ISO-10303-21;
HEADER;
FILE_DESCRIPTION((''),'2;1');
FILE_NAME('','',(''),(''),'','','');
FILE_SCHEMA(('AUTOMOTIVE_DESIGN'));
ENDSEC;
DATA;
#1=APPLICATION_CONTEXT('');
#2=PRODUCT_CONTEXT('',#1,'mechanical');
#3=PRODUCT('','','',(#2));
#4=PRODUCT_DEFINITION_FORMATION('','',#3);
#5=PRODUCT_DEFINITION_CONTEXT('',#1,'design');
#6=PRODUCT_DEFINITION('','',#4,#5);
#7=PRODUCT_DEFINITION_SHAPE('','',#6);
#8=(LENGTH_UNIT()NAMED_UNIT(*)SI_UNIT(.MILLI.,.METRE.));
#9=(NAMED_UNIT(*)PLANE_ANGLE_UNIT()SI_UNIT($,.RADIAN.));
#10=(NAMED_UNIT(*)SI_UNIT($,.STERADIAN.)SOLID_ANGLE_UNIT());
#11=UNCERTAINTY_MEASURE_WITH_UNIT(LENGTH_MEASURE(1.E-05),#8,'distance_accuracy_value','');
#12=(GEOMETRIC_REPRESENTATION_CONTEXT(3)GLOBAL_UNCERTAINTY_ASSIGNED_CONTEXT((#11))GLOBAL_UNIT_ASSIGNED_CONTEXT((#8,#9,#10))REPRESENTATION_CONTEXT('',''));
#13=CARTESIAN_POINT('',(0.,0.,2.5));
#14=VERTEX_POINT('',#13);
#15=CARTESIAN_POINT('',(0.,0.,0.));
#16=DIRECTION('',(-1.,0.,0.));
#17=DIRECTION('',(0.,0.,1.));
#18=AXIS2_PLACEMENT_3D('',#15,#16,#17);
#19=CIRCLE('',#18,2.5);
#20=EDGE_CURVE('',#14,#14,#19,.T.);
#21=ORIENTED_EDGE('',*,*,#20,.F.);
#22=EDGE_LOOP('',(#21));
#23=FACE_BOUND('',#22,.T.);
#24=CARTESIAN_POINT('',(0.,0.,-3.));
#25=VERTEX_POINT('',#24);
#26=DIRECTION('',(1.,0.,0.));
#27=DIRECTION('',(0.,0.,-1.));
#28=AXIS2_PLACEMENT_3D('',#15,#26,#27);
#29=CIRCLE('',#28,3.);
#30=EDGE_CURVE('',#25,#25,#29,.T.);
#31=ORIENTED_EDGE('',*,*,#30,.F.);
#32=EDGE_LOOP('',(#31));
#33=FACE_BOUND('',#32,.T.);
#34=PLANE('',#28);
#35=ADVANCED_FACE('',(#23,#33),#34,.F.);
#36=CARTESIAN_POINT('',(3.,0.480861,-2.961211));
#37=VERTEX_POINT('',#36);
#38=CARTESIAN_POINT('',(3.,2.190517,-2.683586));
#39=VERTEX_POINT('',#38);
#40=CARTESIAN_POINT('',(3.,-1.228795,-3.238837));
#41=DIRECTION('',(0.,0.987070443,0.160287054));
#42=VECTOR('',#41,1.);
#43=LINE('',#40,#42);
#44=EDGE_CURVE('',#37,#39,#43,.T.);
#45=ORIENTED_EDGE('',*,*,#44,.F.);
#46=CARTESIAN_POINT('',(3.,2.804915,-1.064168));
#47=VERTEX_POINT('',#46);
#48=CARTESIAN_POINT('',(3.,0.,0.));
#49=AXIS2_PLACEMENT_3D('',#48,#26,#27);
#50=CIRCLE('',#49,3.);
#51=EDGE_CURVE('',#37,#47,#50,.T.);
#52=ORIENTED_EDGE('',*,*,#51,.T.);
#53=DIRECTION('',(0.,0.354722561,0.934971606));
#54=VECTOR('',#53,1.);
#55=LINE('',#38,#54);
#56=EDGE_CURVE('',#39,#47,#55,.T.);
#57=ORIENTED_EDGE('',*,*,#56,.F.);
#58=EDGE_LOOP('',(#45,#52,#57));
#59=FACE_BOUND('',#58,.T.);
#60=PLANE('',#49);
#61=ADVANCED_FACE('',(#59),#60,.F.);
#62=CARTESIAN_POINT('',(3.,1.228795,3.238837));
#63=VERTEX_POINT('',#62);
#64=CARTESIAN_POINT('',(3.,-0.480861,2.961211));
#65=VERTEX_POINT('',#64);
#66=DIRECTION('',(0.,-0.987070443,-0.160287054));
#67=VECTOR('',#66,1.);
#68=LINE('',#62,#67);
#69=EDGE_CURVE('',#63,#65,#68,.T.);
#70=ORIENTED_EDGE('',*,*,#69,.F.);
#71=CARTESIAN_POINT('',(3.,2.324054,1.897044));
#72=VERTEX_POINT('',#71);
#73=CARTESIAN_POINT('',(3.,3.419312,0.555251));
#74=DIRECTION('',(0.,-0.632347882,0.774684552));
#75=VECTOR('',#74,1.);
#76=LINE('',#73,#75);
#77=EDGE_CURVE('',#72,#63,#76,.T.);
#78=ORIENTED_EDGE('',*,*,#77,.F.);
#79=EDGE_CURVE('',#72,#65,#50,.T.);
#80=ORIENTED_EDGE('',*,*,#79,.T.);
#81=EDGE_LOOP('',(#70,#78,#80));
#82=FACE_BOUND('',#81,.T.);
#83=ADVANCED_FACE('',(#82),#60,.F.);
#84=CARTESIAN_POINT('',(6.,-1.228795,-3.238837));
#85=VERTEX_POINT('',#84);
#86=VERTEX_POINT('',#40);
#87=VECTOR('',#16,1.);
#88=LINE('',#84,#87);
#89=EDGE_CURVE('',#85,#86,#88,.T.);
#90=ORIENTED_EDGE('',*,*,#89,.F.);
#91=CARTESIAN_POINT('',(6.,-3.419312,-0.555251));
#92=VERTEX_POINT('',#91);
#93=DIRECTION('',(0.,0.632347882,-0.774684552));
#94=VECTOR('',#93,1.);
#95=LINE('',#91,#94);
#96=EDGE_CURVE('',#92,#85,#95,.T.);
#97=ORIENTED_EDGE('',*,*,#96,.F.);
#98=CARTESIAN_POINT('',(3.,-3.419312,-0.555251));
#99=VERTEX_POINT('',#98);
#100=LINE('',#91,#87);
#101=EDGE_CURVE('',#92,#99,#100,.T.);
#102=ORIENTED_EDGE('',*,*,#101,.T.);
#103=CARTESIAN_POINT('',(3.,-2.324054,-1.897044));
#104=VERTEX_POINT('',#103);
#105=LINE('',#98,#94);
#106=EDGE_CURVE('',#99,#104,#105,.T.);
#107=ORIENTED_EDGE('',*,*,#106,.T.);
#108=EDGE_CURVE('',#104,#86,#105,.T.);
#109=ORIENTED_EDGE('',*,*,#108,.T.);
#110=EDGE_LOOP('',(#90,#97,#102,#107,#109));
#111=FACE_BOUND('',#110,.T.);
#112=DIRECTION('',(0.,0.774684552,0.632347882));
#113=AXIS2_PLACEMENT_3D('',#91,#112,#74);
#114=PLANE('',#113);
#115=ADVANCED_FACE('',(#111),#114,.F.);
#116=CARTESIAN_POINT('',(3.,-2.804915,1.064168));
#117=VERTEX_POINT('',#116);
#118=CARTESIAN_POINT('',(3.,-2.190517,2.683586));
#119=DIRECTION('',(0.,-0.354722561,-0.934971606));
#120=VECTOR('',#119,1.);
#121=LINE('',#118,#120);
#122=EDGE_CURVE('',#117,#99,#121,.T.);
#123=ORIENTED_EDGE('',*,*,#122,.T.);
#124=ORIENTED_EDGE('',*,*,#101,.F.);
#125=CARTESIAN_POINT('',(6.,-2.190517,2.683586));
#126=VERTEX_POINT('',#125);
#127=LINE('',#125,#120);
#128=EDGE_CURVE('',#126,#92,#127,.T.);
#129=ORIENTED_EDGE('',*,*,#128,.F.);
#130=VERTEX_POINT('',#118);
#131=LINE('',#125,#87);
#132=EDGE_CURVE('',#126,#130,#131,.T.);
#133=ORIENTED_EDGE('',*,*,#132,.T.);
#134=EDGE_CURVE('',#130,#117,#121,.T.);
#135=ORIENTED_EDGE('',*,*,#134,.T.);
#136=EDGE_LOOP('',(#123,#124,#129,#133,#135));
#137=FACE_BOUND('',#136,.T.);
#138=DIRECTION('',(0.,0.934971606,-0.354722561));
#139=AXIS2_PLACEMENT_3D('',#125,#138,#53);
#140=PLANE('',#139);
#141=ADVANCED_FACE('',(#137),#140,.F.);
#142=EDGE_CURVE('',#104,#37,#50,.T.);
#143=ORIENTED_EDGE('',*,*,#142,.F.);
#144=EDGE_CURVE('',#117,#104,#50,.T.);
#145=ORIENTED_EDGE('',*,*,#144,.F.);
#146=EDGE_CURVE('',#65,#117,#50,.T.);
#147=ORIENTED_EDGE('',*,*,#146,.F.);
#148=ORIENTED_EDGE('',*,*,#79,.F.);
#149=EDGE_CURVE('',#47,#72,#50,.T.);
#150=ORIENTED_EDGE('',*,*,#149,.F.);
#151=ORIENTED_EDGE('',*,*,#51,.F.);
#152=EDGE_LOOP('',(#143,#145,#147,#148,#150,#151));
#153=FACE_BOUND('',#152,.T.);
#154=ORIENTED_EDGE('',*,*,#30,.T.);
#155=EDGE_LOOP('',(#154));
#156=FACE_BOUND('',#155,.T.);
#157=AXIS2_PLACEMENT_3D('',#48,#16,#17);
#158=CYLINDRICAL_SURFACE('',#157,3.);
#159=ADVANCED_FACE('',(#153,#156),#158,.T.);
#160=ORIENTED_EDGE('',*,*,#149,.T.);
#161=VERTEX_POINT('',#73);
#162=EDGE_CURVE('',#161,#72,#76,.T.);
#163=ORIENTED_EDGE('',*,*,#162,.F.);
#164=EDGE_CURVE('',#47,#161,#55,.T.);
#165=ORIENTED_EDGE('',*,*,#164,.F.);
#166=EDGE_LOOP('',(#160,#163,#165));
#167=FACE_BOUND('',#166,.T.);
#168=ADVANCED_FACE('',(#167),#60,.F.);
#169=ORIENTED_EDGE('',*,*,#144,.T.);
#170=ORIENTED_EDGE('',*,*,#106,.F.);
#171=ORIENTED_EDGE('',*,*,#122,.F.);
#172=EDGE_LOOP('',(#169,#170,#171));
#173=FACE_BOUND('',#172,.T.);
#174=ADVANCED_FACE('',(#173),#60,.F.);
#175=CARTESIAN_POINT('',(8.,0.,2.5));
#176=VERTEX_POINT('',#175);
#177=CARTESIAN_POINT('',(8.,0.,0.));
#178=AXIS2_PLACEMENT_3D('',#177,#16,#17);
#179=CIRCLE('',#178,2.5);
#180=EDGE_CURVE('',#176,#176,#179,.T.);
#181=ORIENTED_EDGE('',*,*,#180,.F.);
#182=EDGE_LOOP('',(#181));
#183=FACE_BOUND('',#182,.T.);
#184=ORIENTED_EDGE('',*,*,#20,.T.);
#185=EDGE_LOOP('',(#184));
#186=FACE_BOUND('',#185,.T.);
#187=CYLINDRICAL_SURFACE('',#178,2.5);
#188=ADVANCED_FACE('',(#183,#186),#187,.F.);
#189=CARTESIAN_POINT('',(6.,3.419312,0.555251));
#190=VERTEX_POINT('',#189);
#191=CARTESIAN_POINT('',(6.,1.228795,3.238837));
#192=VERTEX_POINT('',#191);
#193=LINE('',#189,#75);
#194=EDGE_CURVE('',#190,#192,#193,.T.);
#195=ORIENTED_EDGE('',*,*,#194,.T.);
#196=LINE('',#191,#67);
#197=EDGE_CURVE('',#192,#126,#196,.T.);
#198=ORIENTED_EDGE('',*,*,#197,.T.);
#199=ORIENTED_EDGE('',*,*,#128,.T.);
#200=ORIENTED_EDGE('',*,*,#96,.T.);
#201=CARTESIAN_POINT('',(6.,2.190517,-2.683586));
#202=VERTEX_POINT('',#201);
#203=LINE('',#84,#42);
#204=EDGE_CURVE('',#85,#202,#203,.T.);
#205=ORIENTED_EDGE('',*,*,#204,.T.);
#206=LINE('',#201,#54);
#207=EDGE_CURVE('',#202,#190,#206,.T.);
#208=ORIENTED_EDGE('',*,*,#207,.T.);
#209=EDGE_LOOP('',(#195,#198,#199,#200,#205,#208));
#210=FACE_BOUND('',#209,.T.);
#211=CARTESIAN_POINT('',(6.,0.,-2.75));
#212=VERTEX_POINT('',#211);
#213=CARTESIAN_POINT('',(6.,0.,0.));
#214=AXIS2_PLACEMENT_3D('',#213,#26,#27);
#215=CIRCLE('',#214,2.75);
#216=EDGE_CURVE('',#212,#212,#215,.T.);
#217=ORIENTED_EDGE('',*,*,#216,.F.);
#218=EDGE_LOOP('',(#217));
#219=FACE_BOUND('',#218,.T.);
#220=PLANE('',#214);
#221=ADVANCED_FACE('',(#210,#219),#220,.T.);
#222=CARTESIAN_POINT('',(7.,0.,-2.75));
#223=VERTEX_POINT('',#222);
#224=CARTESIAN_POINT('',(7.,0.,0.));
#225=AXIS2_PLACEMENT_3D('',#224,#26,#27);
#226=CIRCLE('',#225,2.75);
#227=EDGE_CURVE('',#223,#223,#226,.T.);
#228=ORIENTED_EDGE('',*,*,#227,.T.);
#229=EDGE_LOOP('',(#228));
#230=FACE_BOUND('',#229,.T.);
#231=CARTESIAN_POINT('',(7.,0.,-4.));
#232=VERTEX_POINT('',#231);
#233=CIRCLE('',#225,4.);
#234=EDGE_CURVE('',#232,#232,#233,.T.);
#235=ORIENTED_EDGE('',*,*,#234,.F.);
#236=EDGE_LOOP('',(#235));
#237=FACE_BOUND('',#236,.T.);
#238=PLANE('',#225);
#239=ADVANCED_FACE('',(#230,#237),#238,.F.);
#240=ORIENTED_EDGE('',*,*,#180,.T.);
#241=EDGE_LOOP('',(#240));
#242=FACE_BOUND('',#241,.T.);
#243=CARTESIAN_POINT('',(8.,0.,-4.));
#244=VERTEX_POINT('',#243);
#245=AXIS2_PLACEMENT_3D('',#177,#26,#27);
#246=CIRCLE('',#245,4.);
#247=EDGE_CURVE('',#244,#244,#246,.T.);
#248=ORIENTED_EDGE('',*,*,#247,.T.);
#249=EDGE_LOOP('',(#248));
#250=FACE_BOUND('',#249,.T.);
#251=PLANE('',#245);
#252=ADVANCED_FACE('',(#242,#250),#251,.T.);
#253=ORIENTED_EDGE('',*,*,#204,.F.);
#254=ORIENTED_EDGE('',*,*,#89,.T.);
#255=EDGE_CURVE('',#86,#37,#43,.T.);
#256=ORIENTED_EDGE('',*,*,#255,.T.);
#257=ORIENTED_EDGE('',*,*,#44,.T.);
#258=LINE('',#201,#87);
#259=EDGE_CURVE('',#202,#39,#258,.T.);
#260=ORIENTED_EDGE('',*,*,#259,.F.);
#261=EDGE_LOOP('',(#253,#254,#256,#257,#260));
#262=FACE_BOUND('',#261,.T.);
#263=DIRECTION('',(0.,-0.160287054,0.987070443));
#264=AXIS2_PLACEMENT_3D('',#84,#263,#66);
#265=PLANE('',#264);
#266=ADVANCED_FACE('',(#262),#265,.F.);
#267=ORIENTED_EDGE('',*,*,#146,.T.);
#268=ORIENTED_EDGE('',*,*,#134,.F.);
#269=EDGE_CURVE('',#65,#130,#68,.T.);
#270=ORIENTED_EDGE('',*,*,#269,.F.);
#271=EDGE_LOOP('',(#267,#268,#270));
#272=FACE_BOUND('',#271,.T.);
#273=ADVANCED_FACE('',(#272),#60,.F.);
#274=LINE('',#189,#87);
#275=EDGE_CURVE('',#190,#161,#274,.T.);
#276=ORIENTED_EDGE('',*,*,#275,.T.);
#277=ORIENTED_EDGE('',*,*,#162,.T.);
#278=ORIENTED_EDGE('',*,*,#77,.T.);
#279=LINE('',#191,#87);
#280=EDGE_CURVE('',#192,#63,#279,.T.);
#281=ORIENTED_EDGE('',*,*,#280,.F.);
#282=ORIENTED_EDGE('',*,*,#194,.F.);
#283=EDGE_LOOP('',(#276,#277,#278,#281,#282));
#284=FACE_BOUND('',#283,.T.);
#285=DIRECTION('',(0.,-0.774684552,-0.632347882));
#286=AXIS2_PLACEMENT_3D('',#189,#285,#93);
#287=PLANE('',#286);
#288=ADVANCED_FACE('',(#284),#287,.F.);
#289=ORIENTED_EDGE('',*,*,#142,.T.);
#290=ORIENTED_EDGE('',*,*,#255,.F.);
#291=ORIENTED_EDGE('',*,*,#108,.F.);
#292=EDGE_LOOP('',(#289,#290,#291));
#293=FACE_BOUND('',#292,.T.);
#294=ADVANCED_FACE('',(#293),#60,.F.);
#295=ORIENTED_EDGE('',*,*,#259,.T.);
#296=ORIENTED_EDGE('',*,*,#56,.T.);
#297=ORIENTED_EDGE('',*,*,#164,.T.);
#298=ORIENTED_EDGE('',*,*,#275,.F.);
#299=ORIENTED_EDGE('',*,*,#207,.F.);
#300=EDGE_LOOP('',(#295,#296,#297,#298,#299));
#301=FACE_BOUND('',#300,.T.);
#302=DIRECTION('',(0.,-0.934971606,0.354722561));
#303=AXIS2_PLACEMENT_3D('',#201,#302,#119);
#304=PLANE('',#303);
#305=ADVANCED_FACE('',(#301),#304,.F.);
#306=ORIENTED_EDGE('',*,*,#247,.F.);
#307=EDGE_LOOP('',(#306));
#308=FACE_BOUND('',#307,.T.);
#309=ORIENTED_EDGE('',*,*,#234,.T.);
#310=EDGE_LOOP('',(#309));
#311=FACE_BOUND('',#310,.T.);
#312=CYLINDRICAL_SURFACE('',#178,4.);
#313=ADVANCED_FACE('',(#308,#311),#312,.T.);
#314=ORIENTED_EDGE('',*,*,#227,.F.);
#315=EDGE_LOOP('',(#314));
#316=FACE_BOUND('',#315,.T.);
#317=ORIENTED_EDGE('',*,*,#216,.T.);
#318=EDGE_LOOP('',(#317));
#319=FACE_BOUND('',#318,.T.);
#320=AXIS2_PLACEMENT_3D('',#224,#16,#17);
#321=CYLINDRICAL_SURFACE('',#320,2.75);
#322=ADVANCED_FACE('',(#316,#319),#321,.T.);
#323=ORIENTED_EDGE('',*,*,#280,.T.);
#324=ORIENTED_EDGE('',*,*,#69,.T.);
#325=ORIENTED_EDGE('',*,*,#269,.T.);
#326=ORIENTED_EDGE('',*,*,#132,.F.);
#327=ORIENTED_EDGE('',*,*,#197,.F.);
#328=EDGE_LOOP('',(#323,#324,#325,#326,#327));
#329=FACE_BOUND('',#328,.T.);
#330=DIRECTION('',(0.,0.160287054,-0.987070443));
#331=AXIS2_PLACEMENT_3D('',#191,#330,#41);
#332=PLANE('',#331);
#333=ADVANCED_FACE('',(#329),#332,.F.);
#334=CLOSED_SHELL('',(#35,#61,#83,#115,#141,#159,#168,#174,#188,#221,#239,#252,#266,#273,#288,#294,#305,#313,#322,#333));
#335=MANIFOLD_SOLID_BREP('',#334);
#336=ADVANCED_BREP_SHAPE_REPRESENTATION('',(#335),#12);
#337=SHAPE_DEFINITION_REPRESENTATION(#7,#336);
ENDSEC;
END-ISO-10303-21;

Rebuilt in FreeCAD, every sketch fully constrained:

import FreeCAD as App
import Part
import Sketcher

V = App.Vector

doc = App.newDocument("Part")
body = doc.addObject("PartDesign::Body", "Body")

sketch1 = body.newObject("Sketcher::SketchObject", "Sketch")
sketch1.AttachmentSupport = (doc.getObject("YZ_Plane"), [""])
sketch1.MapMode = "FlatFace"
sketch1.addGeometry(Part.Circle(V(0, 0, 0), V(0, 0, 1), 3), False)
sketch1.addConstraint([
    Sketcher.Constraint("Coincident", 0, 3, -1, 1),
    Sketcher.Constraint("Diameter", 0, 6.0),
])
pad1 = body.newObject("PartDesign::Pad", "Pad")
pad1.Profile = sketch1
pad1.Length = 3

sketch2 = body.newObject("Sketcher::SketchObject", "Sketch001")
sketch2.AttachmentSupport = (doc.getObject("YZ_Plane"), [""])
sketch2.MapMode = "FlatFace"
sketch2.AttachmentOffset = App.Placement(V(0, 0, 3), App.Rotation())
sketch2.addGeometry([
    Part.LineSegment(V(-1.2, -3.2, 0), V(2.2, -2.7, 0)),
    Part.LineSegment(V(2.2, -2.7, 0), V(3.4, 0.6, 0)),
    Part.LineSegment(V(3.4, 0.6, 0), V(1.2, 3.2, 0)),
    Part.LineSegment(V(1.2, 3.2, 0), V(-2.2, 2.7, 0)),
    Part.LineSegment(V(-2.2, 2.7, 0), V(-3.4, -0.6, 0)),
    Part.LineSegment(V(-3.4, -0.6, 0), V(-1.2, -3.2, 0)),
], False)
sketch2.addConstraint([
    Sketcher.Constraint("Coincident", 0, 2, 1, 1),
    Sketcher.Constraint("Coincident", 1, 2, 2, 1),
    Sketcher.Constraint("Coincident", 2, 2, 3, 1),
    Sketcher.Constraint("Coincident", 3, 2, 4, 1),
    Sketcher.Constraint("Coincident", 4, 2, 5, 1),
    Sketcher.Constraint("Coincident", 5, 2, 0, 1),
    Sketcher.Constraint("Symmetric", 0, 2, 3, 2, -1, 1),
    Sketcher.Constraint("Symmetric", 1, 2, 4, 2, -1, 1),
    Sketcher.Constraint("Symmetric", 2, 2, 5, 2, -1, 1),
    Sketcher.Constraint("Equal", 0, 1),
    Sketcher.Constraint("Equal", 1, 2),
    Sketcher.Constraint("Distance", 0, 3.464102),
    Sketcher.Constraint("DistanceY", 4, 2, 1, 2, 1.110501),
    Sketcher.Constraint("DistanceY", 3, 2, 2, 2, 0.555251),
    Sketcher.Constraint("DistanceX", 3, 2, 1, 2, 5.60983),
])
pad2 = body.newObject("PartDesign::Pad", "Pad001")
pad2.Profile = sketch2
pad2.Length = 3

sketch3 = body.newObject("Sketcher::SketchObject", "Sketch002")
sketch3.AttachmentSupport = (doc.getObject("YZ_Plane"), [""])
sketch3.MapMode = "FlatFace"
sketch3.AttachmentOffset = App.Placement(V(0, 0, 6), App.Rotation())
sketch3.addGeometry(Part.Circle(V(0, 0, 0), V(0, 0, 1), 2.8), False)
sketch3.addConstraint([
    Sketcher.Constraint("Coincident", 0, 3, -1, 1),
    Sketcher.Constraint("Diameter", 0, 5.5),
])
pad3 = body.newObject("PartDesign::Pad", "Pad002")
pad3.Profile = sketch3
pad3.Length = 1

sketch4 = body.newObject("Sketcher::SketchObject", "Sketch003")
sketch4.AttachmentSupport = (doc.getObject("YZ_Plane"), [""])
sketch4.MapMode = "FlatFace"
sketch4.AttachmentOffset = App.Placement(V(0, 0, 7), App.Rotation())
sketch4.addGeometry(Part.Circle(V(0, 0, 0), V(0, 0, 1), 4), False)
sketch4.addConstraint([
    Sketcher.Constraint("Coincident", 0, 3, -1, 1),
    Sketcher.Constraint("Diameter", 0, 8.0),
])
pad4 = body.newObject("PartDesign::Pad", "Pad003")
pad4.Profile = sketch4
pad4.Length = 1

sketch5 = body.newObject("Sketcher::SketchObject", "Sketch004")
sketch5.AttachmentSupport = (doc.getObject("YZ_Plane"), [""])
sketch5.MapMode = "FlatFace"
sketch5.addGeometry(Part.Circle(V(0, 0, 0), V(0, 0, 1), 2.5), False)
sketch5.addConstraint([
    Sketcher.Constraint("Coincident", 0, 3, -1, 1),
    Sketcher.Constraint("Diameter", 0, 5.0),
])
pocket1 = body.newObject("PartDesign::Pocket", "Pocket")
pocket1.Profile = sketch5
pocket1.Type = "ThroughAll"
pocket1.Reversed = True

doc.recompute()
